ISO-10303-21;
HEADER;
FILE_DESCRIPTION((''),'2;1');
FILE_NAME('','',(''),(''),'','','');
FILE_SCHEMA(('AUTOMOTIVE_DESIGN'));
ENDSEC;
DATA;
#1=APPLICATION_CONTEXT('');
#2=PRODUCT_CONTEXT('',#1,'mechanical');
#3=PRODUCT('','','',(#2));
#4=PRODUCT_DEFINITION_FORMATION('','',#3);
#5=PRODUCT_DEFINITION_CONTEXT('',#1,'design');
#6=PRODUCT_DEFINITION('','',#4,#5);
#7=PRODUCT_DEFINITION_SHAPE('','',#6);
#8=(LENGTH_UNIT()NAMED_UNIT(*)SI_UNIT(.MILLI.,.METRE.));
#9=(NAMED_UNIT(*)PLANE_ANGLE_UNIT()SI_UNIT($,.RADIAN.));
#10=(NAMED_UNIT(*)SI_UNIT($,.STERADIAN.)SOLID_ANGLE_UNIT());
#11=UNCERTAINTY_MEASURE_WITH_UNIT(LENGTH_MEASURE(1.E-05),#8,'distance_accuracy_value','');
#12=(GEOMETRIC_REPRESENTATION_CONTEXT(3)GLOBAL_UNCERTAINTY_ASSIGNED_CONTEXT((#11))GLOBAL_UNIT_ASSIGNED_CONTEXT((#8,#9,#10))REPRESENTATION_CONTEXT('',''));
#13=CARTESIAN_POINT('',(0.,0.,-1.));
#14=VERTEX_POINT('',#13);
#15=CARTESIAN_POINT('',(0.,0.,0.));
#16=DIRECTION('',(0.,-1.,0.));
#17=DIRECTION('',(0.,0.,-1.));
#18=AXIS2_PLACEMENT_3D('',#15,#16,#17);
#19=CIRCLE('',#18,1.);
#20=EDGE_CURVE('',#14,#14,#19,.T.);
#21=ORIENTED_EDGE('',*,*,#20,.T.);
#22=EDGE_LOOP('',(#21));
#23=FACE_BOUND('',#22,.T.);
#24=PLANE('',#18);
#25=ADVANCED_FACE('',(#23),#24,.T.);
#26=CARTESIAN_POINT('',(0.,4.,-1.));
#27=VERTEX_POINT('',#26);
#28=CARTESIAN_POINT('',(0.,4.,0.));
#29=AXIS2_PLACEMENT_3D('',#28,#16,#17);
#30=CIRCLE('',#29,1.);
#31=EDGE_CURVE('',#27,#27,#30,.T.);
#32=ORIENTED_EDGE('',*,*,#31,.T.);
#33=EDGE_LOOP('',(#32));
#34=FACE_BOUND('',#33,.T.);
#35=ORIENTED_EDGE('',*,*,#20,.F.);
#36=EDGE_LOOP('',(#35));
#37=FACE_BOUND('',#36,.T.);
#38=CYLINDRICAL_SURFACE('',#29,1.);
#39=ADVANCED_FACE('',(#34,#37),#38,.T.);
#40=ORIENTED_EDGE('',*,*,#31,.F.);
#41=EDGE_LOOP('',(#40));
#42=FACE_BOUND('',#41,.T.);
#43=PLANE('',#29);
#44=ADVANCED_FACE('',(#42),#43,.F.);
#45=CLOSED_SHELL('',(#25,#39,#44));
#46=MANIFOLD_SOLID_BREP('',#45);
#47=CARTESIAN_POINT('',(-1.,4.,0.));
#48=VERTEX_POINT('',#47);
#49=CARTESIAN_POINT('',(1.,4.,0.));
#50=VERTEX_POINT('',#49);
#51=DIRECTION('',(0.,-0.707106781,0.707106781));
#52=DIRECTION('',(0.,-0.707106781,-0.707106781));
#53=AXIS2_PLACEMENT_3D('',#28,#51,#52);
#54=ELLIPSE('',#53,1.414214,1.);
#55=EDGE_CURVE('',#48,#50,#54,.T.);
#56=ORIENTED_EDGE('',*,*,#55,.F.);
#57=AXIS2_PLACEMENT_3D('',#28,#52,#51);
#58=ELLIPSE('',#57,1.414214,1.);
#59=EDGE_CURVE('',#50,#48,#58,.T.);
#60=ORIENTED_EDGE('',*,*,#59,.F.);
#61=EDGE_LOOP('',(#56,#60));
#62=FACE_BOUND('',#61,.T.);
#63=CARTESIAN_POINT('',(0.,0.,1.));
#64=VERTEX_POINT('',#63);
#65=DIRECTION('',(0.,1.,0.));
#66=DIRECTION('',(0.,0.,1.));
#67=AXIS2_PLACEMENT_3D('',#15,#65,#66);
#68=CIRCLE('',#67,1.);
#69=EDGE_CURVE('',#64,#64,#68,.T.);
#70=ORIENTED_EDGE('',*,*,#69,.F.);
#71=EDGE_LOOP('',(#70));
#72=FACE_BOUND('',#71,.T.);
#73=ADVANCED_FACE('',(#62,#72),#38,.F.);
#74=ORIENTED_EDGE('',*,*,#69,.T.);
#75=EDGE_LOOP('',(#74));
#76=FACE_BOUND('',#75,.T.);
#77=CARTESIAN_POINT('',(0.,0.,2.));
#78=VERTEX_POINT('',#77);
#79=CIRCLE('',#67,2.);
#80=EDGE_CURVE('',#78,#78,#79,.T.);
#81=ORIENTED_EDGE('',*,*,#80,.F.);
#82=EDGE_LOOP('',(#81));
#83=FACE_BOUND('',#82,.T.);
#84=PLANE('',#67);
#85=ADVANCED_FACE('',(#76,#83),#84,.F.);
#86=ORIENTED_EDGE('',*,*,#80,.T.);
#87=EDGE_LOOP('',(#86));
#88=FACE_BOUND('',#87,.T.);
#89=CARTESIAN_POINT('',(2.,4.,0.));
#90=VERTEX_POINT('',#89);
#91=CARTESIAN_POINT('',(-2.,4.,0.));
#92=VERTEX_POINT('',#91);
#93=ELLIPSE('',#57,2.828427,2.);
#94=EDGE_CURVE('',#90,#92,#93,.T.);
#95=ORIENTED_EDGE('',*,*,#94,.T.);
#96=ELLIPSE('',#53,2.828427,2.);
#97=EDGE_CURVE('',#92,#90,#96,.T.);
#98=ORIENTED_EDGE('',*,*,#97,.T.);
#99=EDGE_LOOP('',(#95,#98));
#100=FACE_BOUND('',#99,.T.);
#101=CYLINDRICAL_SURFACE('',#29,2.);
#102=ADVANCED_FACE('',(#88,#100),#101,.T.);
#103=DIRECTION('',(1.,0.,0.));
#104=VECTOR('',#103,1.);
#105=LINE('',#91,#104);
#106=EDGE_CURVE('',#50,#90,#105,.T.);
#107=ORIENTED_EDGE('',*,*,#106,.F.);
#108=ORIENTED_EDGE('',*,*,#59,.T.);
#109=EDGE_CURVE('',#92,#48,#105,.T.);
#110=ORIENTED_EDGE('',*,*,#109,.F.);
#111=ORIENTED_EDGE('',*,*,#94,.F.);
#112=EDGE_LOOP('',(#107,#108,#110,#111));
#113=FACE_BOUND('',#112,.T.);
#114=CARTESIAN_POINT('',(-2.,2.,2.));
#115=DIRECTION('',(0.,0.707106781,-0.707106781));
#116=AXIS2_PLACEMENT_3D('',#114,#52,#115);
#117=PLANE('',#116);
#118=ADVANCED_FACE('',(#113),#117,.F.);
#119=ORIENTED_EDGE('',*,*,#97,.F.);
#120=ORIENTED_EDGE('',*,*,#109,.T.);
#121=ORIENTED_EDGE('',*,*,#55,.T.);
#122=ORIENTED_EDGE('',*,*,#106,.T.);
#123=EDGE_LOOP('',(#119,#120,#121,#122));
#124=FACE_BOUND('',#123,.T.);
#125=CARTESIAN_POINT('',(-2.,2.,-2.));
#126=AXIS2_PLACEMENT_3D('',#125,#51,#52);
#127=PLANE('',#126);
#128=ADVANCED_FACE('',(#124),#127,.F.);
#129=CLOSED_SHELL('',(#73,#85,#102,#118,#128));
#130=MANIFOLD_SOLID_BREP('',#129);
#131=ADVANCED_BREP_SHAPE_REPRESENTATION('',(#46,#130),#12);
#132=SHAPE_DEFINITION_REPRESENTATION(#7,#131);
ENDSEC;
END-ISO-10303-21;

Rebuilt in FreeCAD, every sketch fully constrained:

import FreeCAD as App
import Part
import Sketcher
Q = App.Units.Quantity


def add_polygon(sketch, points):
    """Adds a closed chain of lines whose ends are joined by coincident constraints."""
    first, n = sketch.GeometryCount, len(points)
    for a, b in zip(points, points[1:] + points[:1]):
        sketch.addGeometry(Part.LineSegment(App.Vector(*a, 0), App.Vector(*b, 0)), False)
    for i in range(n):
        sketch.addConstraint(Sketcher.Constraint("Coincident", first + i, 2, first + (i + 1) % n, 1))

doc = App.newDocument("Part")
params = doc.addObject("Spreadsheet::Sheet", "Params")
for row, (alias, value) in enumerate([
    ("sketch1_diameter", "4 mm"),
    ("sketch1_diameter2", "2 mm"),
    ("pad1_length", "4 mm"),
    ("sketch2_width", "2 mm"),
    ("pocket1_length", "4 mm"),
    ("sketch3_diameter", "2 mm"),
    ("pad2_length", "4 mm"),
], start=1):
    params.set(f"A{row}", alias)
    params.set(f"B{row}", "=" + value)
    params.setAlias(f"B{row}", alias)

body = doc.addObject("PartDesign::Body", "Body")

# Sketch on XZ plane
sketch1 = doc.addObject("Sketcher::SketchObject", "Sketch")
body.addObject(sketch1)
sketch1.AttachmentSupport = (doc.XZ_Plane, [""])
sketch1.MapMode = "FlatFace"
sketch1.addGeometry(Part.Circle(App.Vector(0, 0, 0), App.Vector(0, 0, 1), 2), False)
sketch1.addGeometry(Part.Circle(App.Vector(0, 0, 0), App.Vector(0, 0, 1), 1), False)
sketch1.addConstraint(Sketcher.Constraint("Coincident", 0, 3, -1, 1))
sketch1.addConstraint(Sketcher.Constraint("Coincident", 1, 3, -1, 1))
sketch1.addConstraint(Sketcher.Constraint("Diameter", 0, Q("4 mm")))
sketch1.addConstraint(Sketcher.Constraint("Diameter", 1, Q("2 mm")))
sketch1.setExpression("Constraints[2]", "Params.sketch1_diameter")
sketch1.setExpression("Constraints[3]", "Params.sketch1_diameter2")
pad1 = doc.addObject("PartDesign::Pad", "Pad")
body.addObject(pad1)
pad1.Profile = sketch1
pad1.setExpression("Length", "Params.pad1_length")
pad1.Reversed = True

# Sketch on YZ plane
sketch2 = doc.addObject("Sketcher::SketchObject", "Sketch001")
body.addObject(sketch2)
sketch2.AttachmentSupport = (doc.YZ_Plane, [""])
sketch2.MapMode = "FlatFace"
add_polygon(sketch2, [(4, -2), (4, 0), (2, -2)])  # lines 0-2
add_polygon(sketch2, [(4, 2), (2, 2), (4, 0)])  # lines 3-5
sketch2.addConstraint(Sketcher.Constraint("Vertical", 0))
sketch2.addConstraint(Sketcher.Constraint("Horizontal", 2))
sketch2.addConstraint(Sketcher.Constraint("Horizontal", 3))
sketch2.addConstraint(Sketcher.Constraint("Vertical", 5))
sketch2.addConstraint(Sketcher.Constraint("Coincident", 4, 2, 0, 2))
sketch2.addConstraint(Sketcher.Constraint("Symmetric", 1, 2, 3, 2, -1))
sketch2.addConstraint(Sketcher.Constraint("PointOnObject", 0, 2, -1))
sketch2.addConstraint(Sketcher.Constraint("Perpendicular", 1, 4))
sketch2.addConstraint(Sketcher.Constraint("DistanceX", 2, 1, 2, 2, Q("2 mm")))
sketch2.addConstraint(Sketcher.Constraint("DistanceX", -1, 1, 0, 2, Q("4 mm")))
sketch2.setExpression("Constraints[14]", "Params.sketch2_width")
pocket1 = doc.addObject("PartDesign::Pocket", "Pocket")
body.addObject(pocket1)
pocket1.Profile = sketch2
pocket1.setExpression("Length", "Params.pocket1_length")
pocket1.Midplane = True
body2 = doc.addObject("PartDesign::Body", "Body001")

# Sketch on XZ plane
sketch3 = doc.addObject("Sketcher::SketchObject", "Sketch002")
body2.addObject(sketch3)
sketch3.AttachmentSupport = (doc.getObject("XZ_Plane001"), [""])
sketch3.MapMode = "FlatFace"
sketch3.addGeometry(Part.Circle(App.Vector(0, 0, 0), App.Vector(0, 0, 1), 1), False)
sketch3.addConstraint(Sketcher.Constraint("Coincident", 0, 3, -1, 1))
sketch3.addConstraint(Sketcher.Constraint("Diameter", 0, Q("2 mm")))
sketch3.setExpression("Constraints[1]", "Params.sketch3_diameter")
pad2 = doc.addObject("PartDesign::Pad", "Pad001")
body2.addObject(pad2)
pad2.Profile = sketch3
pad2.setExpression("Length", "Params.pad2_length")
pad2.Reversed = True

doc.recompute()
